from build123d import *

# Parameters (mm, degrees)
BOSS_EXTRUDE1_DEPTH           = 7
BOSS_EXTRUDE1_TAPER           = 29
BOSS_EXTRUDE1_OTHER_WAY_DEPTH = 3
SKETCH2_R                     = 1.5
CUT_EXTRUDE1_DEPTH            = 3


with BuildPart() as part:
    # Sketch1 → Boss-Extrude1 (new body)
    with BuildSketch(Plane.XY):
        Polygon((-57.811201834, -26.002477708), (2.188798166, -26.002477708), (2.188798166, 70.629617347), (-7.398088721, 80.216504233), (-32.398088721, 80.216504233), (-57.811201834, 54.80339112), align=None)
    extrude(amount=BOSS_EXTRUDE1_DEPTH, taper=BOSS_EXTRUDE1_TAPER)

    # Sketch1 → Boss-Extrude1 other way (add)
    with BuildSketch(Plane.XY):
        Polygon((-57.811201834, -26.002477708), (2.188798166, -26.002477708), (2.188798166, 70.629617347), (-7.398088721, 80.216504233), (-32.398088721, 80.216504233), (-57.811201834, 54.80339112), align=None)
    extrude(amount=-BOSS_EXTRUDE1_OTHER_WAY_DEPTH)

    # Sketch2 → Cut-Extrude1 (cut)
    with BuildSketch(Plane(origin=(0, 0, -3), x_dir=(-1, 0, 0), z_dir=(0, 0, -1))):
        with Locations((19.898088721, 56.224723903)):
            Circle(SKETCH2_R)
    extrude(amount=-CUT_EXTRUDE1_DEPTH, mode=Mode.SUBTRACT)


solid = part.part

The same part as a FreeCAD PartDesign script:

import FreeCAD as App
import Part
import Sketcher

V = App.Vector
Q = App.Units.Quantity

doc = App.newDocument("Part")
params = doc.addObject("Spreadsheet::Sheet", "Params")
for row, (alias, value) in enumerate([
    ("sketch1_width", "60 mm"),
    ("sketch1_width2", "25 mm"),
    ("pad1_length", "7 mm"),
    ("pad1_taper", "-29 deg"),
    ("sketch2_width", "60 mm"),
    ("sketch2_width2", "25 mm"),
    ("pad2_length", "3 mm"),
    ("sketch3_diameter", "3 mm"),
    ("pocket1_length", "3 mm"),
], start=1):
    params.set(f"A{row}", alias)
    params.set(f"B{row}", "=" + value)
    params.setAlias(f"B{row}", alias)

body = doc.addObject("PartDesign::Body", "Body")

sketch1 = doc.addObject("Sketcher::SketchObject", "Sketch")
body.addObject(sketch1)
sketch1.AttachmentSupport = (doc.XY_Plane, [""])
sketch1.MapMode = "FlatFace"
sketch1.addGeometry([
    Part.LineSegment(V(-57.811202, -26.002478, 0), V(2.188798, -26.002478, 0)),
    Part.LineSegment(V(2.188798, -26.002478, 0), V(2.188798, 70.629617, 0)),
    Part.LineSegment(V(2.188798, 70.629617, 0), V(-7.398089, 80.216504, 0)),
    Part.LineSegment(V(-7.398089, 80.216504, 0), V(-32.398089, 80.216504, 0)),
    Part.LineSegment(V(-32.398089, 80.216504, 0), V(-57.811202, 54.803391, 0)),
    Part.LineSegment(V(-57.811202, 54.803391, 0), V(-57.811202, -26.002478, 0)),
], False)
sketch1.addConstraint([
    Sketcher.Constraint("Coincident", 0, 2, 1, 1),
    Sketcher.Constraint("Coincident", 1, 2, 2, 1),
    Sketcher.Constraint("Coincident", 2, 2, 3, 1),
    Sketcher.Constraint("Coincident", 3, 2, 4, 1),
    Sketcher.Constraint("Coincident", 4, 2, 5, 1),
    Sketcher.Constraint("Coincident", 5, 2, 0, 1),
    Sketcher.Constraint("Horizontal", 0),
    Sketcher.Constraint("Vertical", 1),
    Sketcher.Constraint("Horizontal", 3),
    Sketcher.Constraint("Vertical", 5),
    Sketcher.Constraint("Perpendicular", 2, 4),
    Sketcher.Constraint("DistanceX", 0, 1, 0, 2, 60.0),
    Sketcher.Constraint("DistanceX", 3, 2, 3, 1, 25.0),
    Sketcher.Constraint("Angle", 2, Q("135 deg")),
    Sketcher.Constraint("DistanceY", 5, 2, 5, 1, 80.805869),
    Sketcher.Constraint("DistanceX", -1, 1, 0, 2, 2.188798),
    Sketcher.Constraint("Distance", 4, 35.939569),
    Sketcher.Constraint("DistanceY", -1, 1, 4, 2, 54.803391),
])
sketch1.setExpression("Constraints[11]", "Params.sketch1_width")
sketch1.setExpression("Constraints[12]", "Params.sketch1_width2")
pad1 = doc.addObject("PartDesign::Pad", "Pad")
body.addObject(pad1)
pad1.Profile = sketch1
pad1.setExpression("Length", "Params.pad1_length")
pad1.setExpression("TaperAngle", "Params.pad1_taper")

sketch2 = doc.addObject("Sketcher::SketchObject", "Sketch001")
body.addObject(sketch2)
sketch2.AttachmentSupport = (doc.XY_Plane, [""])
sketch2.MapMode = "FlatFace"
sketch2.addGeometry([
    Part.LineSegment(V(-57.811202, -26.002478, 0), V(2.188798, -26.002478, 0)),
    Part.LineSegment(V(2.188798, -26.002478, 0), V(2.188798, 70.629617, 0)),
    Part.LineSegment(V(2.188798, 70.629617, 0), V(-7.398089, 80.216504, 0)),
    Part.LineSegment(V(-7.398089, 80.216504, 0), V(-32.398089, 80.216504, 0)),
    Part.LineSegment(V(-32.398089, 80.216504, 0), V(-57.811202, 54.803391, 0)),
    Part.LineSegment(V(-57.811202, 54.803391, 0), V(-57.811202, -26.002478, 0)),
], False)
sketch2.addConstraint([
    Sketcher.Constraint("Coincident", 0, 2, 1, 1),
    Sketcher.Constraint("Coincident", 1, 2, 2, 1),
    Sketcher.Constraint("Coincident", 2, 2, 3, 1),
    Sketcher.Constraint("Coincident", 3, 2, 4, 1),
    Sketcher.Constraint("Coincident", 4, 2, 5, 1),
    Sketcher.Constraint("Coincident", 5, 2, 0, 1),
    Sketcher.Constraint("Horizontal", 0),
    Sketcher.Constraint("Vertical", 1),
    Sketcher.Constraint("Horizontal", 3),
    Sketcher.Constraint("Vertical", 5),
    Sketcher.Constraint("Perpendicular", 2, 4),
    Sketcher.Constraint("DistanceX", 0, 1, 0, 2, 60.0),
    Sketcher.Constraint("DistanceX", 3, 2, 3, 1, 25.0),
    Sketcher.Constraint("Angle", 2, Q("135 deg")),
    Sketcher.Constraint("DistanceY", 5, 2, 5, 1, 80.805869),
    Sketcher.Constraint("DistanceX", -1, 1, 0, 2, 2.188798),
    Sketcher.Constraint("Distance", 4, 35.939569),
    Sketcher.Constraint("DistanceY", -1, 1, 4, 2, 54.803391),
])
sketch2.setExpression("Constraints[11]", "Params.sketch2_width")
sketch2.setExpression("Constraints[12]", "Params.sketch2_width2")
pad2 = doc.addObject("PartDesign::Pad", "Pad001")
body.addObject(pad2)
pad2.Profile = sketch2
pad2.setExpression("Length", "Params.pad2_length")
pad2.Reversed = True

sketch3 = doc.addObject("Sketcher::SketchObject", "Sketch002")
body.addObject(sketch3)
sketch3.AttachmentSupport = (doc.XY_Plane, [""])
sketch3.MapMode = "FlatFace"
sketch3.AttachmentOffset = App.Placement(V(0, 0, -3), App.Rotation())
sketch3.addGeometry(Part.Circle(V(-19.898089, 56.224724, 0), V(0, 0, 1), 1.5), False)
sketch3.addConstraint([
    Sketcher.Constraint("Diameter", 0, 3.0),
    Sketcher.Constraint("DistanceX", 0, 3, -1, 1, 19.898089),
    Sketcher.Constraint("DistanceY", -1, 1, 0, 3, 56.224724),
])
sketch3.setExpression("Constraints[0]", "Params.sketch3_diameter")
pocket1 = doc.addObject("PartDesign::Pocket", "Pocket")
body.addObject(pocket1)
pocket1.Profile = sketch3
pocket1.setExpression("Length", "Params.pocket1_length")
pocket1.Reversed = True

doc.recompute()
